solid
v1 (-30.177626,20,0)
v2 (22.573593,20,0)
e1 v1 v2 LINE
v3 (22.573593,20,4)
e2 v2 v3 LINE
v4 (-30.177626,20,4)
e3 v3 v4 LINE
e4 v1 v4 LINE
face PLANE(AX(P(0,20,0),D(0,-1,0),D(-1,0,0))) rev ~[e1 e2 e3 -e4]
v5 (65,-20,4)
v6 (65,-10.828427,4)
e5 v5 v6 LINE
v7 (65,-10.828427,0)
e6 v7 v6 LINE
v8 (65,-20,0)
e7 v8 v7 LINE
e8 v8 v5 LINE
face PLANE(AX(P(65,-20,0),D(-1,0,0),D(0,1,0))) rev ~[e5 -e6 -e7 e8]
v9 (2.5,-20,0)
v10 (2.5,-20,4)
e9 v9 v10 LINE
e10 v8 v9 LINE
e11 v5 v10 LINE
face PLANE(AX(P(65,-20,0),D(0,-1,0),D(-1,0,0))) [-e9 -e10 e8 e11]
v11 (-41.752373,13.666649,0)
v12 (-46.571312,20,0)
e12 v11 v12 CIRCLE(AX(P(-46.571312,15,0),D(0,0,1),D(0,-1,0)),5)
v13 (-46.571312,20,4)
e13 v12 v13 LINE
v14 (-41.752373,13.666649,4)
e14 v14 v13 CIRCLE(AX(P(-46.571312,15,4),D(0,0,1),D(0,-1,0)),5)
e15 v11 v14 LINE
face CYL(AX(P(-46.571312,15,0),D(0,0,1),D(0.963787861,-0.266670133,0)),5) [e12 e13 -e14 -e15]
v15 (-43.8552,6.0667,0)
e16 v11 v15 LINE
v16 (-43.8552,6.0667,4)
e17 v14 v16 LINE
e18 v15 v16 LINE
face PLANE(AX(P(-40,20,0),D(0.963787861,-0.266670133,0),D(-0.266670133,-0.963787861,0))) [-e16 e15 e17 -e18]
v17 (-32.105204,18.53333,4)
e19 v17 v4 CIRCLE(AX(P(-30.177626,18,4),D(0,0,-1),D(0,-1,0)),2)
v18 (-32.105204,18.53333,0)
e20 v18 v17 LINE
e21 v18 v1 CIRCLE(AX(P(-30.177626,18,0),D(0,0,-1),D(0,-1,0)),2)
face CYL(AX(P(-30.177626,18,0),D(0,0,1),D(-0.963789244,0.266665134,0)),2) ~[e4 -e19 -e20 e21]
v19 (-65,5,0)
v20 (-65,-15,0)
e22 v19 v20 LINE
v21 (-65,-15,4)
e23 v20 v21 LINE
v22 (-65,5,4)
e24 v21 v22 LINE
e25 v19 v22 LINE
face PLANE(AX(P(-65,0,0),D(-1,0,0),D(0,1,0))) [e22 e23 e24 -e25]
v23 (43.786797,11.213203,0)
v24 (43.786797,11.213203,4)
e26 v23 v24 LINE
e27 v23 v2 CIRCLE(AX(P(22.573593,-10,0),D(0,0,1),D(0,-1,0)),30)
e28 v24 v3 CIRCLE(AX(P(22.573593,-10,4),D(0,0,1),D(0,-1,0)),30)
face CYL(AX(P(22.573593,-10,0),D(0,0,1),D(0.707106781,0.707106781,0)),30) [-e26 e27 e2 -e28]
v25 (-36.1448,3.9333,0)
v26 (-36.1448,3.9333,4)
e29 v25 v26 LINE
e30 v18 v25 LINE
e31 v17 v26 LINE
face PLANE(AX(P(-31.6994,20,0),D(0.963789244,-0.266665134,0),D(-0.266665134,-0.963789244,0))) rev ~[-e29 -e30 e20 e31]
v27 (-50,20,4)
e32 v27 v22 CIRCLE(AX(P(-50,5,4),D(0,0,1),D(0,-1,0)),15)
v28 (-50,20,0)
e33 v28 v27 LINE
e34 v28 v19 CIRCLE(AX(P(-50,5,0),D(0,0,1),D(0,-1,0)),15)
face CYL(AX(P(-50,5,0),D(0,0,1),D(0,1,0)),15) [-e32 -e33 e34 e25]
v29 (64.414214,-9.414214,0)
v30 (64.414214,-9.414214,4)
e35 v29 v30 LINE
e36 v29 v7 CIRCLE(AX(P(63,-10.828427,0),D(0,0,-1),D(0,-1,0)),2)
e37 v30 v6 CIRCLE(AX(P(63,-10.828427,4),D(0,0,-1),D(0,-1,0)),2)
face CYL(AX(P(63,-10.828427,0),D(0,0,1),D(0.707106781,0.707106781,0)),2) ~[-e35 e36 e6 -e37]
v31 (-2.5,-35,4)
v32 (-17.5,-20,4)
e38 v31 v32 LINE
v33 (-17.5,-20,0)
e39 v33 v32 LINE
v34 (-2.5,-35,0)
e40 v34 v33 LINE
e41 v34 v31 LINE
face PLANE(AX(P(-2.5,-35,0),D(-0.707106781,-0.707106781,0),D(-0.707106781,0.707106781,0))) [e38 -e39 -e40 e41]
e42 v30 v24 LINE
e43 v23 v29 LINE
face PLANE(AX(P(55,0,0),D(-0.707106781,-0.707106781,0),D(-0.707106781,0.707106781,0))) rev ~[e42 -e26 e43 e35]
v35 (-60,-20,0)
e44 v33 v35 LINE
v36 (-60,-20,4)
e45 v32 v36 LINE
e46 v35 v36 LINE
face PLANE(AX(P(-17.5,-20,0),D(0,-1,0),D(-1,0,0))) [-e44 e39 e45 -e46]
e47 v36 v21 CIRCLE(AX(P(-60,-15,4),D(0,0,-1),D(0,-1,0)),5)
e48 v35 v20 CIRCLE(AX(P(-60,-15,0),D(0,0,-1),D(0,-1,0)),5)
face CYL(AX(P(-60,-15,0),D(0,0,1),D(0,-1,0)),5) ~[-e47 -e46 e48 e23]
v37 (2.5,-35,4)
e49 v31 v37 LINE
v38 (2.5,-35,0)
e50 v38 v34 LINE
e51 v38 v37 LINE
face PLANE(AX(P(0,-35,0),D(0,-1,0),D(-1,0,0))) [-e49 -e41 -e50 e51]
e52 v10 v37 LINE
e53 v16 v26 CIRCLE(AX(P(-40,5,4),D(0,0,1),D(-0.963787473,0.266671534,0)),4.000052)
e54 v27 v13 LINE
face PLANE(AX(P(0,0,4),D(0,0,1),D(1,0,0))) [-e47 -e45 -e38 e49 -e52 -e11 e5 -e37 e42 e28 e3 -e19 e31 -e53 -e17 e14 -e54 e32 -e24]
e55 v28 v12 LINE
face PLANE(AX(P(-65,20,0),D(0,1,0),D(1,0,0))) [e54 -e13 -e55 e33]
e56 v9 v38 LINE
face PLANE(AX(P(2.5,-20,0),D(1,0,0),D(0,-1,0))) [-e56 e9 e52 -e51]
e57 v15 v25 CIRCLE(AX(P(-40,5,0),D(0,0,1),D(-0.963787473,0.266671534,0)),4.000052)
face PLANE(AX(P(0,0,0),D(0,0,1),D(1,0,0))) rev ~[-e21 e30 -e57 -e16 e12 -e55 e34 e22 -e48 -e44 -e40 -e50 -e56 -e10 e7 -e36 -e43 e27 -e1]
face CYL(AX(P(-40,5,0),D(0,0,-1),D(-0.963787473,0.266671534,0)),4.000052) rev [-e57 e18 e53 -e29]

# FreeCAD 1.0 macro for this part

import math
import FreeCAD as App
import Part
import Sketcher
from FreeCAD import Vector
Q = App.Units.Quantity


def edges_at(feature, points):
    """Names of the edges that pass closest to the given points."""
    edges = feature.Shape.Edges
    near = lambda p: min(range(len(edges)), key=lambda i: edges[i].distToShape(Part.Vertex(*p))[0])
    return sorted({f"Edge{near(p) + 1}" for p in points})

doc = App.newDocument("Part")
body = doc.addObject("PartDesign::Body", "Body")

sketch1 = body.newObject("Sketcher::SketchObject", "Sketch")
sketch1.AttachmentSupport = (doc.getObject("XY_Plane"), [""])
sketch1.MapMode = "FlatFace"
sketch1.addGeometry(Part.LineSegment(Vector(-65, 20, 0), Vector(-65, -20, 0)), False)
sketch1.addGeometry(Part.LineSegment(Vector(-65, -20, 0), Vector(-17.5, -20, 0)), False)
sketch1.addGeometry(Part.LineSegment(Vector(-17.5, -20, 0), Vector(-2.5, -35, 0)), False)
sketch1.addGeometry(Part.LineSegment(Vector(-2.5, -35, 0), Vector(2.5, -35, 0)), False)
sketch1.addGeometry(Part.LineSegment(Vector(2.5, -35, 0), Vector(2.5, -20, 0)), False)
sketch1.addGeometry(Part.LineSegment(Vector(2.5, -20, 0), Vector(65, -20, 0)), False)
sketch1.addGeometry(Part.LineSegment(Vector(65, -20, 0), Vector(65, -10, 0)), False)
sketch1.addGeometry(Part.LineSegment(Vector(65, -10, 0), Vector(35, 20, 0)), False)
sketch1.addGeometry(Part.LineSegment(Vector(35, 20, 0), Vector(-31.6994, 20, 0)), False)
sketch1.addGeometry(Part.LineSegment(Vector(-31.6994, 20, 0), Vector(-36.1448, 3.9333, 0)), False)
sketch1.addGeometry(Part.ArcOfCircle(Part.Circle(Vector(-40, 5, 0), Vector(0, 0, 1), 4.000052), math.radians(164.533701), math.radians(344.533701)), False)
sketch1.addGeometry(Part.LineSegment(Vector(-43.8552, 6.0667, 0), Vector(-40, 20, 0)), False)
sketch1.addGeometry(Part.LineSegment(Vector(-40, 20, 0), Vector(-65, 20, 0)), False)
sketch1.addConstraint(Sketcher.Constraint("Coincident", 0, 2, 1, 1))
sketch1.addConstraint(Sketcher.Constraint("Coincident", 1, 2, 2, 1))
sketch1.addConstraint(Sketcher.Constraint("Coincident", 2, 2, 3, 1))
sketch1.addConstraint(Sketcher.Constraint("Coincident", 3, 2, 4, 1))
sketch1.addConstraint(Sketcher.Constraint("Coincident", 4, 2, 5, 1))
sketch1.addConstraint(Sketcher.Constraint("Coincident", 5, 2, 6, 1))
sketch1.addConstraint(Sketcher.Constraint("Coincident", 6, 2, 7, 1))
sketch1.addConstraint(Sketcher.Constraint("Coincident", 7, 2, 8, 1))
sketch1.addConstraint(Sketcher.Constraint("Coincident", 8, 2, 9, 1))
sketch1.addConstraint(Sketcher.Constraint("Tangent", 9, 2, 10, 2))
sketch1.addConstraint(Sketcher.Constraint("Tangent", 10, 1, 11, 1))
sketch1.addConstraint(Sketcher.Constraint("Coincident", 11, 2, 12, 1))
sketch1.addConstraint(Sketcher.Constraint("Coincident", 12, 2, 0, 1))
sketch1.addConstraint(Sketcher.Constraint("Vertical", 0))
sketch1.addConstraint(Sketcher.Constraint("Horizontal", 1))
sketch1.addConstraint(Sketcher.Constraint("Horizontal", 3))
sketch1.addConstraint(Sketcher.Constraint("Vertical", 4))
sketch1.addConstraint(Sketcher.Constraint("Horizontal", 5))
sketch1.addConstraint(Sketcher.Constraint("Vertical", 6))
sketch1.addConstraint(Sketcher.Constraint("Horizontal", 8))
sketch1.addConstraint(Sketcher.Constraint("Horizontal", 12))
sketch1.addConstraint(Sketcher.Constraint("Symmetric", 5, 2, 12, 2, -1, 1))
sketch1.addConstraint(Sketcher.Constraint("Parallel", 2, 7))
sketch1.addConstraint(Sketcher.Constraint("Parallel", 9, 11))
sketch1.addConstraint(Sketcher.Constraint("Horizontal", 1, 2, 4, 2))
sketch1.addConstraint(Sketcher.Constraint("Horizontal", 8, 2, 11, 2))
sketch1.addConstraint(Sketcher.Constraint("Vertical", 10, 3, 11, 2))
sketch1.addConstraint(Sketcher.Constraint("Radius", 10, Q("4 mm")))
sketch1.addConstraint(Sketcher.Constraint("DistanceX", 3, 1, 3, 2, Q("5 mm")))
sketch1.addConstraint(Sketcher.Constraint("DistanceX", 12, 2, 12, 1, Q("25 mm")))
sketch1.addConstraint(Sketcher.Constraint("DistanceY", 0, 2, 0, 1, Q("40 mm")))
sketch1.addConstraint(Sketcher.Constraint("DistanceY", 4, 1, 4, 2, Q("15 mm")))
sketch1.addConstraint(Sketcher.Constraint("DistanceY", 6, 1, 6, 2, Q("10 mm")))
sketch1.addConstraint(Sketcher.Constraint("DistanceX", 10, 3, -1, 1, Q("40 mm")))
sketch1.addConstraint(Sketcher.Constraint("DistanceY", -1, 1, 10, 3, Q("5 mm")))
sketch1.addConstraint(Sketcher.Constraint("DistanceX", 1, 2, 2, 2, Q("15 mm")))
sketch1.addConstraint(Sketcher.Constraint("DistanceX", 1, 1, 1, 2, Q("47.5 mm")))
pad1 = body.newObject("PartDesign::Pad", "Pad")
pad1.Profile = sketch1
pad1.Length = 4
doc.recompute()

fillet = body.newObject("PartDesign::Fillet", "Fillet")
fillet.Base = (pad1, edges_at(pad1, [(-31.699, 20, 2), (65, -10, 2)]))
fillet.Radius = 2
doc.recompute()

fillet2 = body.newObject("PartDesign::Fillet", "Fillet001")
fillet2.Base = (fillet, edges_at(fillet, [(35, 20, 2)]))
fillet2.Radius = 30
doc.recompute()

fillet3 = body.newObject("PartDesign::Fillet", "Fillet002")
fillet3.Base = (fillet2, edges_at(fillet2, [(-40, 20, 2), (-65, -20, 2)]))
fillet3.Radius = 5
doc.recompute()

fillet4 = body.newObject("PartDesign::Fillet", "Fillet003")
fillet4.Base = (fillet3, edges_at(fillet3, [(-65, 20, 2)]))
fillet4.Radius = 15

doc.recompute()
